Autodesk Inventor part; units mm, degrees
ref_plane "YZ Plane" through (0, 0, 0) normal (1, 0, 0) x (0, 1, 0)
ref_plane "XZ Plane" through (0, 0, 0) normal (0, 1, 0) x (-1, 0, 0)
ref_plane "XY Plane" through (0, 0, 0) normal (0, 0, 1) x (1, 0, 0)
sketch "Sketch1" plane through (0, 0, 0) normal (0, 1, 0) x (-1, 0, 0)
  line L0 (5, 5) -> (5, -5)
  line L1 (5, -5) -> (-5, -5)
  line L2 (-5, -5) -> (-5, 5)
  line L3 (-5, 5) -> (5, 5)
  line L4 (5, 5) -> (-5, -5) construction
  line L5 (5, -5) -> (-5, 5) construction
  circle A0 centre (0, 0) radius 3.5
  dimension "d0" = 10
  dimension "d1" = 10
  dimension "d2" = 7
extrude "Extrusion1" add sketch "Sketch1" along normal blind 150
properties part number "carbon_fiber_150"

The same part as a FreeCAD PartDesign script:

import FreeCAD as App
import Part
import Sketcher


def add_polygon(sketch, points):
    """Adds a closed chain of lines whose ends are joined by coincident constraints."""
    first, n = sketch.GeometryCount, len(points)
    for a, b in zip(points, points[1:] + points[:1]):
        sketch.addGeometry(Part.LineSegment(App.Vector(*a, 0), App.Vector(*b, 0)), False)
    for i in range(n):
        sketch.addConstraint(Sketcher.Constraint("Coincident", first + i, 2, first + (i + 1) % n, 1))

doc = App.newDocument("Part")
body = doc.addObject("PartDesign::Body", "Body")

sketch1 = body.newObject("Sketcher::SketchObject", "Sketch")
sketch1.AttachmentSupport = (doc.getObject("XZ_Plane"), [""])
sketch1.MapMode = "FlatFace"
add_polygon(sketch1, [(-5, -5), (-5, 5), (5, 5), (5, -5)])
sketch1.addGeometry(Part.Circle(App.Vector(0, 0, 0), App.Vector(0, 0, 1), 3.5), False)
sketch1.addConstraint([
    Sketcher.Constraint("Vertical", 0),
    Sketcher.Constraint("Horizontal", 1),
    Sketcher.Constraint("Vertical", 2),
    Sketcher.Constraint("Horizontal", 3),
    Sketcher.Constraint("Coincident", 4, 3, -1, 1),
    Sketcher.Constraint("Symmetric", 0, 2, 2, 2, -1, 1),
    Sketcher.Constraint("Equal", 3, 0),
    Sketcher.Constraint("Diameter", 4, 7.0),
    Sketcher.Constraint("DistanceX", 1, 1, 1, 2, 10.0),
])
pad1 = body.newObject("PartDesign::Pad", "Pad")
pad1.Profile = sketch1
pad1.Length = 150
pad1.Reversed = True

doc.recompute()
